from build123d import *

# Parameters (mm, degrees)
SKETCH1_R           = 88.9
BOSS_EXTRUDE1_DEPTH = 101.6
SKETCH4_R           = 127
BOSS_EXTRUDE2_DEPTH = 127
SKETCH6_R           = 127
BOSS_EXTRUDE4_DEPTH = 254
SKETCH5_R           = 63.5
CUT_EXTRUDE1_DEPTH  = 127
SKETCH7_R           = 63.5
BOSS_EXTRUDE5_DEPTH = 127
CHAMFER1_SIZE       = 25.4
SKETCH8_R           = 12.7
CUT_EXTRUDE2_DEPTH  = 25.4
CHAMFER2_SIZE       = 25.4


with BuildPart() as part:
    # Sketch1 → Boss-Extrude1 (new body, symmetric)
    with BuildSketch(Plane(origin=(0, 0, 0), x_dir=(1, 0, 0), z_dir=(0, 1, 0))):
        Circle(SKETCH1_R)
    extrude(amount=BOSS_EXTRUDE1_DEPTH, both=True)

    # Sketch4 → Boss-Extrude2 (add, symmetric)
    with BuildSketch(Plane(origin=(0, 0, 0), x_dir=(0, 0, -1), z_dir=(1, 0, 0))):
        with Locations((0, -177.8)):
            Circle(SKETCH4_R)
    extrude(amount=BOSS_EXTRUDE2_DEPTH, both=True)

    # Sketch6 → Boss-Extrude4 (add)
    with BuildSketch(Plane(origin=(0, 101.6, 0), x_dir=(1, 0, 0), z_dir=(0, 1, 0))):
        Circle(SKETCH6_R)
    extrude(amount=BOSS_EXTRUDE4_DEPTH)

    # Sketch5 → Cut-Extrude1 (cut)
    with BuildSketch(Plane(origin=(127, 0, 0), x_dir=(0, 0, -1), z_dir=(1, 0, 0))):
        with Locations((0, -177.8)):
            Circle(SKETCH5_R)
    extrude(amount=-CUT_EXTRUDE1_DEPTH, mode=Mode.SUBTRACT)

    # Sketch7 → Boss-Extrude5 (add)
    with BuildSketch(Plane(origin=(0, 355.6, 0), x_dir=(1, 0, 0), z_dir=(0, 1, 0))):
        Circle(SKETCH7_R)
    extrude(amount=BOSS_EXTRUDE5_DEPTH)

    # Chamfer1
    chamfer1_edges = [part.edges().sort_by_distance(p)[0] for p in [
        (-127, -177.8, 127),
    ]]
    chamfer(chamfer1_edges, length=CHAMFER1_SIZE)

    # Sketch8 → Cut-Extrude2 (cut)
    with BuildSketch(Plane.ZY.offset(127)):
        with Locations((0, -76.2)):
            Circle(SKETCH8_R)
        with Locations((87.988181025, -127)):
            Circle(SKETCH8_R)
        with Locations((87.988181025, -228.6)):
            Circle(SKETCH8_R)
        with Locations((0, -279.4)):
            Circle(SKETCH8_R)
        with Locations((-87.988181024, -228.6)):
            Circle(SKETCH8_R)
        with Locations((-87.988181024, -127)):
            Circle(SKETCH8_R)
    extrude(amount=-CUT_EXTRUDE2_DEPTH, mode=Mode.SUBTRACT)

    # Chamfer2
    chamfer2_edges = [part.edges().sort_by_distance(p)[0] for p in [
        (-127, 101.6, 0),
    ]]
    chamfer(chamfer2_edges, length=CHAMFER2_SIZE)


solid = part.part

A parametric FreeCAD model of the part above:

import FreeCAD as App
import Part
import Sketcher
from FreeCAD import Vector
Q = App.Units.Quantity


def edges_at(feature, points):
    """Names of the edges that pass closest to the given points."""
    edges = feature.Shape.Edges
    near = lambda p: min(range(len(edges)), key=lambda i: edges[i].distToShape(Part.Vertex(*p))[0])
    return sorted({f"Edge{near(p) + 1}" for p in points})

doc = App.newDocument("Part")
body = doc.addObject("PartDesign::Body", "Body")

sketch1 = body.newObject("Sketcher::SketchObject", "Sketch")
sketch1.AttachmentSupport = (doc.getObject("XZ_Plane"), [""])
sketch1.MapMode = "FlatFace"
sketch1.addGeometry(Part.Circle(Vector(0, 0, 0), Vector(0, 0, 1), 88.9), False)
sketch1.addConstraint(Sketcher.Constraint("Coincident", 0, 3, -1, 1))
sketch1.addConstraint(Sketcher.Constraint("Diameter", 0, Q("7 in")))
pad1 = body.newObject("PartDesign::Pad", "Pad")
pad1.Profile = sketch1
pad1.Length = Q("8 in")
pad1.Midplane = True

sketch2 = body.newObject("Sketcher::SketchObject", "Sketch001")
sketch2.AttachmentSupport = (doc.getObject("YZ_Plane"), [""])
sketch2.MapMode = "FlatFace"
sketch2.addGeometry(Part.Circle(Vector(-177.8, 0, 0), Vector(0, 0, 1), 127), False)
sketch2.addConstraint(Sketcher.Constraint("PointOnObject", 0, 3, -1))
sketch2.addConstraint(Sketcher.Constraint("Diameter", 0, Q("10 in")))
sketch2.addConstraint(Sketcher.Constraint("DistanceX", 0, 3, -1, 1, Q("7 in")))
pad2 = body.newObject("PartDesign::Pad", "Pad001")
pad2.Profile = sketch2
pad2.Length = Q("10 in")
pad2.Midplane = True

sketch3 = body.newObject("Sketcher::SketchObject", "Sketch002")
sketch3.AttachmentSupport = (doc.getObject("XZ_Plane"), [""])
sketch3.MapMode = "FlatFace"
sketch3.AttachmentOffset = App.Placement(Vector(0, 0, -4 * 25.4), App.Rotation())
sketch3.addGeometry(Part.Circle(Vector(0, 0, 0), Vector(0, 0, 1), 127), False)
sketch3.addConstraint(Sketcher.Constraint("Coincident", 0, 3, -1, 1))
sketch3.addConstraint(Sketcher.Constraint("Diameter", 0, Q("10 in")))
pad3 = body.newObject("PartDesign::Pad", "Pad002")
pad3.Profile = sketch3
pad3.Length = Q("10 in")
pad3.Reversed = True

sketch4 = body.newObject("Sketcher::SketchObject", "Sketch003")
sketch4.AttachmentSupport = (doc.getObject("YZ_Plane"), [""])
sketch4.MapMode = "FlatFace"
sketch4.AttachmentOffset = App.Placement(Vector(0, 0, 5 * 25.4), App.Rotation())
sketch4.addGeometry(Part.Circle(Vector(-177.8, 0, 0), Vector(0, 0, 1), 63.5), False)
sketch4.addConstraint(Sketcher.Constraint("PointOnObject", 0, 3, -1))
sketch4.addConstraint(Sketcher.Constraint("Diameter", 0, Q("5 in")))
sketch4.addConstraint(Sketcher.Constraint("DistanceX", 0, 3, -1, 1, Q("7 in")))
pocket1 = body.newObject("PartDesign::Pocket", "Pocket")
pocket1.Profile = sketch4
pocket1.Length = Q("5 in")

sketch5 = body.newObject("Sketcher::SketchObject", "Sketch004")
sketch5.AttachmentSupport = (doc.getObject("XZ_Plane"), [""])
sketch5.MapMode = "FlatFace"
sketch5.AttachmentOffset = App.Placement(Vector(0, 0, -14 * 25.4), App.Rotation())
sketch5.addGeometry(Part.Circle(Vector(0, 0, 0), Vector(0, 0, 1), 63.5), False)
sketch5.addConstraint(Sketcher.Constraint("Coincident", 0, 3, -1, 1))
sketch5.addConstraint(Sketcher.Constraint("Diameter", 0, Q("5 in")))
pad4 = body.newObject("PartDesign::Pad", "Pad003")
pad4.Profile = sketch5
pad4.Length = Q("5 in")
pad4.Reversed = True
doc.recompute()

chamfer = body.newObject("PartDesign::Chamfer", "Chamfer")
chamfer.Base = (pad4, edges_at(pad4, [(-127, -177.8, 127)]))
chamfer.Size = Q("1 in")

sketch6 = body.newObject("Sketcher::SketchObject", "Sketch005")
sketch6.AttachmentSupport = (doc.getObject("YZ_Plane"), [""])
sketch6.MapMode = "FlatFace"
sketch6.AttachmentOffset = App.Placement(Vector(0, 0, -5 * 25.4), App.Rotation())
sketch6.addGeometry(Part.Circle(Vector(-76.2, 0, 0), Vector(0, 0, 1), 12.7), False)
sketch6.addGeometry(Part.Circle(Vector(-127, 87.988181, 0), Vector(0, 0, 1), 12.7), False)
sketch6.addGeometry(Part.Circle(Vector(-228.6, 87.988181, 0), Vector(0, 0, 1), 12.7), False)
sketch6.addGeometry(Part.Circle(Vector(-279.4, 0, 0), Vector(0, 0, 1), 12.7), False)
sketch6.addGeometry(Part.Circle(Vector(-228.6, -87.988181, 0), Vector(0, 0, 1), 12.7), False)
sketch6.addGeometry(Part.Circle(Vector(-127, -87.988181, 0), Vector(0, 0, 1), 12.7), False)
sketch6.addConstraint(Sketcher.Constraint("Equal", 0, 1))
sketch6.addConstraint(Sketcher.Constraint("Equal", 1, 2))
sketch6.addConstraint(Sketcher.Constraint("Equal", 2, 3))
sketch6.addConstraint(Sketcher.Constraint("Equal", 3, 4))
sketch6.addConstraint(Sketcher.Constraint("Equal", 4, 5))
sketch6.addConstraint(Sketcher.Constraint("Symmetric", 2, 3, 4, 3, -1))
sketch6.addConstraint(Sketcher.Constraint("Symmetric", 1, 3, 5, 3, -1))
sketch6.addConstraint(Sketcher.Constraint("PointOnObject", 0, 3, -1))
sketch6.addConstraint(Sketcher.Constraint("PointOnObject", 3, 3, -1))
sketch6.addConstraint(Sketcher.Constraint("Horizontal", 1, 3, 2, 3))
sketch6.addConstraint(Sketcher.Constraint("Diameter", 0, Q("1 in")))
sketch6.addConstraint(Sketcher.Constraint("DistanceX", 0, 3, -1, 1, Q("3 in")))
sketch6.addConstraint(Sketcher.Constraint("DistanceX", 1, 3, -1, 1, Q("5 in")))
sketch6.addConstraint(Sketcher.Constraint("DistanceX", 2, 3, -1, 1, Q("9 in")))
sketch6.addConstraint(Sketcher.Constraint("DistanceX", 3, 3, -1, 1, Q("11 in")))
sketch6.addConstraint(Sketcher.Constraint("DistanceY", -1, 1, 1, 3, 87.988181))
pocket2 = body.newObject("PartDesign::Pocket", "Pocket001")
pocket2.Profile = sketch6
pocket2.Length = Q("1 in")
pocket2.Reversed = True
doc.recompute()

chamfer2 = body.newObject("PartDesign::Chamfer", "Chamfer001")
chamfer2.Base = (pocket2, edges_at(pocket2, [(-127, 101.6, 0)]))
chamfer2.Size = Q("1 in")

doc.recompute()
